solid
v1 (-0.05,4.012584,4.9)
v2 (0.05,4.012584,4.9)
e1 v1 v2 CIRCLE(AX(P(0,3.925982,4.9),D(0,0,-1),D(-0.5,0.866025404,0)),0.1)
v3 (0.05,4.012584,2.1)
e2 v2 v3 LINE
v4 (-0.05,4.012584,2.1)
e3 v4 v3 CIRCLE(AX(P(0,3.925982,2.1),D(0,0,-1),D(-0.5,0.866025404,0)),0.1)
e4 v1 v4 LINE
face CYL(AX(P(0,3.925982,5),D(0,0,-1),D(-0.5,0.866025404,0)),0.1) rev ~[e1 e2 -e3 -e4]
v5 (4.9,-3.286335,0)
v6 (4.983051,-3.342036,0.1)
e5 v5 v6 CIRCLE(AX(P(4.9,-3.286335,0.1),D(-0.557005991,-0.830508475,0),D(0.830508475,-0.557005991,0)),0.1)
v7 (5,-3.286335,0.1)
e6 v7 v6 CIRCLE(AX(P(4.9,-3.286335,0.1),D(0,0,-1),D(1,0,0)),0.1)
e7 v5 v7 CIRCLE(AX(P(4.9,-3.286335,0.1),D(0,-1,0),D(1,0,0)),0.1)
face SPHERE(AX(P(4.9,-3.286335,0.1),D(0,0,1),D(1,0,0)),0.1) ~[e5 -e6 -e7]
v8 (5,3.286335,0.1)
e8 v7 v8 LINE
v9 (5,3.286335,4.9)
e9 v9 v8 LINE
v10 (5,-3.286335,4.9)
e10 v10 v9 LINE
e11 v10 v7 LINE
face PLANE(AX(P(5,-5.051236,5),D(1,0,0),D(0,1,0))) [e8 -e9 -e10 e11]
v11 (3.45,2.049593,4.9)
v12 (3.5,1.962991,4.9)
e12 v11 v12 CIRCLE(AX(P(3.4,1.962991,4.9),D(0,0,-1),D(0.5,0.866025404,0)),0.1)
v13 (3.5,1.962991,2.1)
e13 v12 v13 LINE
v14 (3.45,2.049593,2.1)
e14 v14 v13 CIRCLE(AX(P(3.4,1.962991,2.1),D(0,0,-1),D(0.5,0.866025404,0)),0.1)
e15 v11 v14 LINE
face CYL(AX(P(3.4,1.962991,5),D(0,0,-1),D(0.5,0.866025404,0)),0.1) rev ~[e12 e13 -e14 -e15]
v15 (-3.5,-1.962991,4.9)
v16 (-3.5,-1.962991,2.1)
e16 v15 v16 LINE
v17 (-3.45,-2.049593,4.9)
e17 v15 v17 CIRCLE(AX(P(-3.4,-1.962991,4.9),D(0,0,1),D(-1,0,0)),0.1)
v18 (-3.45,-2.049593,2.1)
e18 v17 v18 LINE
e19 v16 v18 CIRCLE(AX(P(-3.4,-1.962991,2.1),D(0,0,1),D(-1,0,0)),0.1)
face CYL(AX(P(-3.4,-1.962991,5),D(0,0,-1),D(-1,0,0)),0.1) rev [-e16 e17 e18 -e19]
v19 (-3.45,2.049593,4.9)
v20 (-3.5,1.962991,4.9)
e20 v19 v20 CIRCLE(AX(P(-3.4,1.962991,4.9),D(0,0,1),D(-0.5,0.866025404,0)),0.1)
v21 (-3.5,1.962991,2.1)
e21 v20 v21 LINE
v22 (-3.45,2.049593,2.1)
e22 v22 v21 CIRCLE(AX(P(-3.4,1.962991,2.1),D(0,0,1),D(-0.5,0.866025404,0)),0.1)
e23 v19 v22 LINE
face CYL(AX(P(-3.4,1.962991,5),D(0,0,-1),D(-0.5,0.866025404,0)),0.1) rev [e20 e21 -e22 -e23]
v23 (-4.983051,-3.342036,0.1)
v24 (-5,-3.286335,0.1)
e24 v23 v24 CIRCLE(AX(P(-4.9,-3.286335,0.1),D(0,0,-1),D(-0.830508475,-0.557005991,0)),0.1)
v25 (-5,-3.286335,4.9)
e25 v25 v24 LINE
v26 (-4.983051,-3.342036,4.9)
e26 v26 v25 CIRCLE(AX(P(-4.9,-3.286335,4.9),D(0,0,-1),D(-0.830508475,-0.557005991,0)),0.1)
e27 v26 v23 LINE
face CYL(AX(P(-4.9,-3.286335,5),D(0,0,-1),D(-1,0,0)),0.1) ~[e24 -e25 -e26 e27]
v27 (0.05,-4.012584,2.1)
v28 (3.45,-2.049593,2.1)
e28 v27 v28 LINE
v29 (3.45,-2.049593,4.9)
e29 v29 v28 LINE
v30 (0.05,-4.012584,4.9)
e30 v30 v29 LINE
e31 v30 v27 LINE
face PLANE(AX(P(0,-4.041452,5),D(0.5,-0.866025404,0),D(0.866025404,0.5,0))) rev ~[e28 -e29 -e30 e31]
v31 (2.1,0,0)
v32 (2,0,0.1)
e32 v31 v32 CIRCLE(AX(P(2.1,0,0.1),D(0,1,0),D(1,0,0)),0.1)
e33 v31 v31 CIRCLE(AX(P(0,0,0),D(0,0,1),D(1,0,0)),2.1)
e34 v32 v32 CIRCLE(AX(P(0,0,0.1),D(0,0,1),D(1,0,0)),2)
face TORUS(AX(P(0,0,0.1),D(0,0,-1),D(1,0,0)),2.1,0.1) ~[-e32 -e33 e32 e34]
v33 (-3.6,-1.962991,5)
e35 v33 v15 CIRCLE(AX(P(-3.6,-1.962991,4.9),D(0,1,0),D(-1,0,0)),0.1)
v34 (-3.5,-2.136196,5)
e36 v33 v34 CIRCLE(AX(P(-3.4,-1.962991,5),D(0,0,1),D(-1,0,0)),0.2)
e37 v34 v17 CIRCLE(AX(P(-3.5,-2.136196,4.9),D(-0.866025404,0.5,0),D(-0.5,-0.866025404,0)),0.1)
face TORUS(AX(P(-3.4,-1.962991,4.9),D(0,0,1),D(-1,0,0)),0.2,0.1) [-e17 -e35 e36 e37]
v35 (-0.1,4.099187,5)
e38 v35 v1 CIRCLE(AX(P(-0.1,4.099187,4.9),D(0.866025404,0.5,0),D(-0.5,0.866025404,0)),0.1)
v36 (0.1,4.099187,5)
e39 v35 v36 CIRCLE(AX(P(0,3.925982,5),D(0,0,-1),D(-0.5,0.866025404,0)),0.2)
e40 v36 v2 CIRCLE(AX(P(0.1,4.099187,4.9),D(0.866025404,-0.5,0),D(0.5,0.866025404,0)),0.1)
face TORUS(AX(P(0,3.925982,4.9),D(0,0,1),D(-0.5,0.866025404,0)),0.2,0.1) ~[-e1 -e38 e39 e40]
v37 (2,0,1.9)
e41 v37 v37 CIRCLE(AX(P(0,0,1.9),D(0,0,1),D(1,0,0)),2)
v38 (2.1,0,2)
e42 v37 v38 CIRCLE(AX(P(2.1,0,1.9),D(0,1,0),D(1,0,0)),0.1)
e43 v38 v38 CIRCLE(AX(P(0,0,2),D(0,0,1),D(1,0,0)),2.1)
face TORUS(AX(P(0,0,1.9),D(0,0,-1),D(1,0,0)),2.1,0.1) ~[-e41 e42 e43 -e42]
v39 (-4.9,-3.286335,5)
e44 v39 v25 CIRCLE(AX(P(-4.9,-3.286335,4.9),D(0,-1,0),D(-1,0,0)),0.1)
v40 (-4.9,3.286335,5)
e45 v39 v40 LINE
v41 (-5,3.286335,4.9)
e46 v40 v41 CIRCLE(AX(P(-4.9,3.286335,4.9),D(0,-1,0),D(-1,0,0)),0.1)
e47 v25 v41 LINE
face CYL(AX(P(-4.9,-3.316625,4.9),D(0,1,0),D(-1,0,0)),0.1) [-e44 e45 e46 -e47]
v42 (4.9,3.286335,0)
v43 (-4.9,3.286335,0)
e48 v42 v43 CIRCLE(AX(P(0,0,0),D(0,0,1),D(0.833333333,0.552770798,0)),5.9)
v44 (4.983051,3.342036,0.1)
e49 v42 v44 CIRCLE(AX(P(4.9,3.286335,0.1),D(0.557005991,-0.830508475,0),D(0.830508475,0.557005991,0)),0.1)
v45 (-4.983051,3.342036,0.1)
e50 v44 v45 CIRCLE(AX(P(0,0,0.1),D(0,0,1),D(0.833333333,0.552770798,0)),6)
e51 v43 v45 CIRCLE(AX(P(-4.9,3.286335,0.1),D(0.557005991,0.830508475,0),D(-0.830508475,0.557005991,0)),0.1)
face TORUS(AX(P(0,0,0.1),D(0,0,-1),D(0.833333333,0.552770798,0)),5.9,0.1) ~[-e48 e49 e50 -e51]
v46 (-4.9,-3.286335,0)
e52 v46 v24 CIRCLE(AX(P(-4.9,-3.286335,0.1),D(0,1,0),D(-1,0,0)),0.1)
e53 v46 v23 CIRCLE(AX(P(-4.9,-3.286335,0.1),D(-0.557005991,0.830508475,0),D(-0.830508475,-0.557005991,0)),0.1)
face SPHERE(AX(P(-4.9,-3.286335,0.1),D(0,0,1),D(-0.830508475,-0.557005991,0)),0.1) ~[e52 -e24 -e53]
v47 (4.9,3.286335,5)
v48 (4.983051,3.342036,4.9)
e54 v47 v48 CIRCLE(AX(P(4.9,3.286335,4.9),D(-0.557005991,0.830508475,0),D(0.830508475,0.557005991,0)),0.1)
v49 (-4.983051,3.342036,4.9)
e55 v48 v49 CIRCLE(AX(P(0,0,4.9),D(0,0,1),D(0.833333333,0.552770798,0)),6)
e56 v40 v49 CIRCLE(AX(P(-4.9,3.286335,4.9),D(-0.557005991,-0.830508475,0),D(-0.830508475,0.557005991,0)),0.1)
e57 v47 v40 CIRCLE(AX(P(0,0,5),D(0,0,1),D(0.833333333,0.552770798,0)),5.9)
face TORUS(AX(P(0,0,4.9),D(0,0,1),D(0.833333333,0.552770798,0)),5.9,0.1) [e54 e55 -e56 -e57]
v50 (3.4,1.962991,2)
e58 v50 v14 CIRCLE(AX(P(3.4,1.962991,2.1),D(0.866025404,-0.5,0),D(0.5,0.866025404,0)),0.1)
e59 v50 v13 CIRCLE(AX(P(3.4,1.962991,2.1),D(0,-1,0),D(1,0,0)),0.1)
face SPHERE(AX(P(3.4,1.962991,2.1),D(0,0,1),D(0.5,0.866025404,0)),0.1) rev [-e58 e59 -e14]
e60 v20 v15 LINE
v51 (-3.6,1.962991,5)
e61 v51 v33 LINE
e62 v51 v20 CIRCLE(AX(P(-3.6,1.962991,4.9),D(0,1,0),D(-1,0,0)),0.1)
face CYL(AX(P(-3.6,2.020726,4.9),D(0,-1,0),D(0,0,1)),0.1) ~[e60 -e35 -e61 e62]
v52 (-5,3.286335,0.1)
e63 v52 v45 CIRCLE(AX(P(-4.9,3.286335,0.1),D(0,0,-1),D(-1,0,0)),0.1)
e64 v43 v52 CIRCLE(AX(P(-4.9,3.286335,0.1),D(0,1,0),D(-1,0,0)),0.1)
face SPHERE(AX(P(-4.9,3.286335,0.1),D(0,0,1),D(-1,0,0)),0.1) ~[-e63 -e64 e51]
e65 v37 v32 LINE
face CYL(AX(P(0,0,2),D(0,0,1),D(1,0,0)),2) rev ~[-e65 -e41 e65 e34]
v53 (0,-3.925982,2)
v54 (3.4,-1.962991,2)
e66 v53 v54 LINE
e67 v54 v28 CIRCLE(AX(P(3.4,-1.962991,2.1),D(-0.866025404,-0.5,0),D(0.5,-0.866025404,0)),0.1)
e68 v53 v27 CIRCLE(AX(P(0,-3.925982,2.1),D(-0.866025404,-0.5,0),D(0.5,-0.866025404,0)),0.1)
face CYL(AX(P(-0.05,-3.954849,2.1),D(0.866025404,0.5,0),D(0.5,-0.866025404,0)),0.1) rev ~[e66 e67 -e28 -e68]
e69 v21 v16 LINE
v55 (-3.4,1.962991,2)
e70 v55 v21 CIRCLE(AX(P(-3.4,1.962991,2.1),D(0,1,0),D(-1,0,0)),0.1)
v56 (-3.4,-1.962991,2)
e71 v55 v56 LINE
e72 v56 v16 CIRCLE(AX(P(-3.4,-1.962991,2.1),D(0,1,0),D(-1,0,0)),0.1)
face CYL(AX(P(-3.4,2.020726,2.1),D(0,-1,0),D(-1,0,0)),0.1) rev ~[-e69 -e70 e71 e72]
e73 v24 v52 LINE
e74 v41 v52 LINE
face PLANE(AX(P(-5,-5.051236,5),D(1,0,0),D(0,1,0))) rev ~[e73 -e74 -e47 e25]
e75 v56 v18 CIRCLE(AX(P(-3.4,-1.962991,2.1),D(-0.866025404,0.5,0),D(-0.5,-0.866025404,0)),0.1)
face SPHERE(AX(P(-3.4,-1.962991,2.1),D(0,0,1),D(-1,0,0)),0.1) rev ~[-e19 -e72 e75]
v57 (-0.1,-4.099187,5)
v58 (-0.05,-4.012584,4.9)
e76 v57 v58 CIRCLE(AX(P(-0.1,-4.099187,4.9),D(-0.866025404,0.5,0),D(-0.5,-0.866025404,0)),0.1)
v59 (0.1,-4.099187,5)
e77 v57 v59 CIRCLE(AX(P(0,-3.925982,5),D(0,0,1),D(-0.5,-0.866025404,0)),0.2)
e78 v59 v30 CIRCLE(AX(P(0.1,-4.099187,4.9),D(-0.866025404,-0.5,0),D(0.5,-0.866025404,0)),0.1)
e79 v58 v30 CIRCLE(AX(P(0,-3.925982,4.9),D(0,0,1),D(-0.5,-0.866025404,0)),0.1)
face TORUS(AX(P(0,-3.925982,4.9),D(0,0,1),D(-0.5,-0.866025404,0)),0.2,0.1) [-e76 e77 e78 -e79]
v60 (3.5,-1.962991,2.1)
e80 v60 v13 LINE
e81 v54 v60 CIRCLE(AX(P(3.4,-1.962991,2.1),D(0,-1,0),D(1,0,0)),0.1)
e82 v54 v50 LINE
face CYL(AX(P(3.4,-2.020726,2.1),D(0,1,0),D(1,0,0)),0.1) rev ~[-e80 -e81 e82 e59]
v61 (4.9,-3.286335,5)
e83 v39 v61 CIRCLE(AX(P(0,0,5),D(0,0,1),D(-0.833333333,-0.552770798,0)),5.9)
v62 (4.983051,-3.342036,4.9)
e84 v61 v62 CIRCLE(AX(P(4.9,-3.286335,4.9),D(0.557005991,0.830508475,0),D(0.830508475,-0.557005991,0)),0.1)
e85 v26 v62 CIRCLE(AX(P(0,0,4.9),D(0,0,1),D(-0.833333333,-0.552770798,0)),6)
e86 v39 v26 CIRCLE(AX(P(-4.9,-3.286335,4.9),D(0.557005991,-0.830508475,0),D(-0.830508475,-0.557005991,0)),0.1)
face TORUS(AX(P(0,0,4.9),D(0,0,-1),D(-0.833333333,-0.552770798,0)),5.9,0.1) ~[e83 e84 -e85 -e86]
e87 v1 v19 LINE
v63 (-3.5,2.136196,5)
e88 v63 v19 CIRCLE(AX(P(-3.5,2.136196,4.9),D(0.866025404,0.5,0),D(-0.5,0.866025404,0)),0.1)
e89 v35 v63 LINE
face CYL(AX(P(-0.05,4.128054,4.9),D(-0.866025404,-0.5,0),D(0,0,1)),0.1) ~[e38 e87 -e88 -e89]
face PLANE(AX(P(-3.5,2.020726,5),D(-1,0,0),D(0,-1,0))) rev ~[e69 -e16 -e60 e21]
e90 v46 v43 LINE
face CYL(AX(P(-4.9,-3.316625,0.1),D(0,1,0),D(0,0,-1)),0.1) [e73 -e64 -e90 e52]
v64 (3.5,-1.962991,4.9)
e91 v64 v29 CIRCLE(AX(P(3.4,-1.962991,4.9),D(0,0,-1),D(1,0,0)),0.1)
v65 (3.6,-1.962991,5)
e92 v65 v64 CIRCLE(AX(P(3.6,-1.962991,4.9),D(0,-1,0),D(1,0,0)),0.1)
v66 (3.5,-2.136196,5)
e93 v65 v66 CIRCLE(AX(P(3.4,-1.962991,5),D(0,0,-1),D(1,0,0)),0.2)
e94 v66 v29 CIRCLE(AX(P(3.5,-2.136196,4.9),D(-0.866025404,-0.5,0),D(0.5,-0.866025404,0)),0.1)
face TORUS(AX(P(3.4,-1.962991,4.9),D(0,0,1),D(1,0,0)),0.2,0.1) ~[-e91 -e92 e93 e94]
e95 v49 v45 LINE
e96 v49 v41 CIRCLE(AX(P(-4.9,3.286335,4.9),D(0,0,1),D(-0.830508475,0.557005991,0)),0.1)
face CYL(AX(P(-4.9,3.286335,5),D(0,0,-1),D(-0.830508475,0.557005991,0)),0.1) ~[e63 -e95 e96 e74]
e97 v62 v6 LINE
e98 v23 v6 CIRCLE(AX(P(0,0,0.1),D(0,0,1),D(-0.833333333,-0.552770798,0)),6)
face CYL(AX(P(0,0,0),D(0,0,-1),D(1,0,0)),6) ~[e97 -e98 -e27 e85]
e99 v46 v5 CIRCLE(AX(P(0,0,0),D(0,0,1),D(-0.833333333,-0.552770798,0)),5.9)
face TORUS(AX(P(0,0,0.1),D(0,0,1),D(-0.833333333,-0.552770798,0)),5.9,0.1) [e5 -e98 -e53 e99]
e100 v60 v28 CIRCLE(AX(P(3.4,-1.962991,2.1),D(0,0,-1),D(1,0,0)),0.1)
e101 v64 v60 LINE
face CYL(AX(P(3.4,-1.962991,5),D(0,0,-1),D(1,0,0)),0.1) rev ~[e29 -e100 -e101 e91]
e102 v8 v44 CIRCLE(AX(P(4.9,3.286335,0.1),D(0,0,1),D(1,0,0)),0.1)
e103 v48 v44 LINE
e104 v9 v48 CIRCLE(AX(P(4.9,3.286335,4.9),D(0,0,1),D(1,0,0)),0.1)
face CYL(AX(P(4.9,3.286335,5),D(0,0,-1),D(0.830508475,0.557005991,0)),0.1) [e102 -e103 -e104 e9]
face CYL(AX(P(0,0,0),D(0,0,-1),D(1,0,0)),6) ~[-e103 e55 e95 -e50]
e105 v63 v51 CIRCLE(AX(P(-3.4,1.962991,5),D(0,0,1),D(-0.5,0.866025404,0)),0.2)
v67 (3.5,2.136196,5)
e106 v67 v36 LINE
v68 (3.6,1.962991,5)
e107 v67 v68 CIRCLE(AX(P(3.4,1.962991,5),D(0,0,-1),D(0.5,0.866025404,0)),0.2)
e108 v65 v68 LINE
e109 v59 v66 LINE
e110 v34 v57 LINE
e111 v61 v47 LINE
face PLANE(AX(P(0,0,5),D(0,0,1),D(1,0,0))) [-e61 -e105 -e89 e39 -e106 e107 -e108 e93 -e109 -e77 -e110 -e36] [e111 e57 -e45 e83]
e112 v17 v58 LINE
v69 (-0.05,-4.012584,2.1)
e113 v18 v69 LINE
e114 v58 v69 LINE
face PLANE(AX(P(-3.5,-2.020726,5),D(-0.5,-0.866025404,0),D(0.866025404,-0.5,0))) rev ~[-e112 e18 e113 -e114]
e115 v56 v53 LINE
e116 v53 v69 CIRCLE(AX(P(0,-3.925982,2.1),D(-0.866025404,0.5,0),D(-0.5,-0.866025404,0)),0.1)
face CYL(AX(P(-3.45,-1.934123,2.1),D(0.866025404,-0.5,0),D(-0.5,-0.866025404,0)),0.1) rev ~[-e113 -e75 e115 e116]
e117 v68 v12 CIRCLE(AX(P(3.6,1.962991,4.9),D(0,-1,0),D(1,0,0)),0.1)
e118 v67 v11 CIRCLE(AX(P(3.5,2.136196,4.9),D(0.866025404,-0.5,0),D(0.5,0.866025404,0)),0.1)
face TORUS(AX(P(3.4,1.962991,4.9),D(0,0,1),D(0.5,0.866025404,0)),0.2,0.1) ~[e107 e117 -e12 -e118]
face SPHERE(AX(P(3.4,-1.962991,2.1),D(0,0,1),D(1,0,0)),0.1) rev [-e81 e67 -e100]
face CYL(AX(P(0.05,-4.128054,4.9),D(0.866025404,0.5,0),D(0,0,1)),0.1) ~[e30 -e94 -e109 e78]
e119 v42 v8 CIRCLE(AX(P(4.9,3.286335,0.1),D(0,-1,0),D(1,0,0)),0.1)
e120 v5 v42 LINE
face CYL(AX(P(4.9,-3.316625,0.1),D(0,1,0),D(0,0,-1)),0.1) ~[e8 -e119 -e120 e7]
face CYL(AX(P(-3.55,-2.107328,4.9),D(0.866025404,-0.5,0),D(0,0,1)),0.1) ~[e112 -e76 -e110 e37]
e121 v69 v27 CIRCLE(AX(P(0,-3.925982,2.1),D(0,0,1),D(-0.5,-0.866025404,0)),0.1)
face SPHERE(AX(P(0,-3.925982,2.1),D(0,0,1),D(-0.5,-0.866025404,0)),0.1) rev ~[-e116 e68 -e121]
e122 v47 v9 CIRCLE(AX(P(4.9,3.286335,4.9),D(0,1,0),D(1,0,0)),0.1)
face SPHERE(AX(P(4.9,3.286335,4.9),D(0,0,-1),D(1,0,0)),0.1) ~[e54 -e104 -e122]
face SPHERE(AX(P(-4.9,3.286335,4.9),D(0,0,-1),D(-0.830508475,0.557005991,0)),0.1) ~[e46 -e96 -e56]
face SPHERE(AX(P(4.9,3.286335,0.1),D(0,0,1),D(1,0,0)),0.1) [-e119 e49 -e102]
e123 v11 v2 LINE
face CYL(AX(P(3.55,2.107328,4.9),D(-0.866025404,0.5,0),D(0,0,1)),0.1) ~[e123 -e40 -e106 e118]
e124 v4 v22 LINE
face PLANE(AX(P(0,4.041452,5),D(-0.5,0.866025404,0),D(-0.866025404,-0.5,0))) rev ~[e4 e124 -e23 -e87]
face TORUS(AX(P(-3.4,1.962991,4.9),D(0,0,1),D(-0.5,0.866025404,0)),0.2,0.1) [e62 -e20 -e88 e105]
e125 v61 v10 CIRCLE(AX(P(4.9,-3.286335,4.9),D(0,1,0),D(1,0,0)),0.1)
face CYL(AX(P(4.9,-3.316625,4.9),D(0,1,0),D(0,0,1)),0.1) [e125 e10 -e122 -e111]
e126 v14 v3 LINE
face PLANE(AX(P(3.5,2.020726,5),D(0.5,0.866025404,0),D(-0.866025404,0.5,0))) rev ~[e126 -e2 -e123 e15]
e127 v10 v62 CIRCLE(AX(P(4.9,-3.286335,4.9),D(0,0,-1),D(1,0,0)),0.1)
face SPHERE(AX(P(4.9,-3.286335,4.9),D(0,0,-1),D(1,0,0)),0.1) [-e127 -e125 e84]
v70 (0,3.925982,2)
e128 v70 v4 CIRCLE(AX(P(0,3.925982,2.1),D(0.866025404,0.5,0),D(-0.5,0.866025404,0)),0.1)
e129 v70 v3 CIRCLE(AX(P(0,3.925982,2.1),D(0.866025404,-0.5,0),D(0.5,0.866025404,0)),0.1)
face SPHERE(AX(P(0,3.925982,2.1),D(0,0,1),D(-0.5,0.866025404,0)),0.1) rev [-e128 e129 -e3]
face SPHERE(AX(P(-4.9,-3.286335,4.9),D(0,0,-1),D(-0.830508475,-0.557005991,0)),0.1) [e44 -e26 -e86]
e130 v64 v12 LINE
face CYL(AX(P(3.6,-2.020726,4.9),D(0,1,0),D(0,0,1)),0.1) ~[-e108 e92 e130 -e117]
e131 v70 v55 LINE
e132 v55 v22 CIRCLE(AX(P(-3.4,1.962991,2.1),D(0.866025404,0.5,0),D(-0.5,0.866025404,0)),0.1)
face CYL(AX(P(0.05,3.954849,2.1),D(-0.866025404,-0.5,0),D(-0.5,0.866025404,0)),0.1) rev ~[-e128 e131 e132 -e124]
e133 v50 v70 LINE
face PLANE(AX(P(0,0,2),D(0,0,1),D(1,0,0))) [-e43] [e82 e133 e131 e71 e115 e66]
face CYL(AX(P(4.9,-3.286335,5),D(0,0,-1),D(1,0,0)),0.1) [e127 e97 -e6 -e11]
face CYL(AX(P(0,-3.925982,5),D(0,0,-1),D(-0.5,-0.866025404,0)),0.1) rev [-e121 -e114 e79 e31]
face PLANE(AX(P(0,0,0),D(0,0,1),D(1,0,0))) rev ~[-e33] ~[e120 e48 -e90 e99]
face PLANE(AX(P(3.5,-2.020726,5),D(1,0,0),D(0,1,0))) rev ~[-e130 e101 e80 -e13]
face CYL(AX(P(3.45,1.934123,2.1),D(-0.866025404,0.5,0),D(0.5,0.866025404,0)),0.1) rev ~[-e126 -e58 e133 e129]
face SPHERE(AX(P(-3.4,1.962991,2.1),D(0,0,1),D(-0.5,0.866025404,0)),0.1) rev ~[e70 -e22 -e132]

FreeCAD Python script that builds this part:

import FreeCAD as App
import Part
import Sketcher
from FreeCAD import Vector
Q = App.Units.Quantity

doc = App.newDocument("Part")
params = doc.addObject("Spreadsheet::Sheet", "Params")
for row, (alias, value) in enumerate([
    ("sketch1_diameter", "12 mm"),
    ("pad1_length", "5 mm"),
    ("pocket1_length", "3 mm"),
    ("sketch4_diameter", "4 mm"),
    ("fillet_radius", "0.1 mm"),
], start=1):
    params.set(f"A{row}", alias)
    params.set(f"B{row}", "=" + value)
    params.setAlias(f"B{row}", alias)

body = doc.addObject("PartDesign::Body", "Body")

# Sketch on XY plane
sketch1 = doc.addObject("Sketcher::SketchObject", "Sketch")
body.addObject(sketch1)
sketch1.AttachmentSupport = (doc.XY_Plane, [""])
sketch1.MapMode = "FlatFace"
sketch1.addGeometry(Part.Circle(Vector(0, 0, 0), Vector(0, 0, 1), 6), False)
sketch1.addConstraint([
    Sketcher.Constraint("Coincident", 0, 3, -1, 1),
    Sketcher.Constraint("Diameter", 0, 12.0),
])
sketch1.setExpression("Constraints[1]", "Params.sketch1_diameter")
pad1 = doc.addObject("PartDesign::Pad", "Pad")
body.addObject(pad1)
pad1.Profile = sketch1
pad1.setExpression("Length", "Params.pad1_length")

# Sketch on XY plane
sketch2 = doc.addObject("Sketcher::SketchObject", "Sketch001")
body.addObject(sketch2)
sketch2.AttachmentSupport = (doc.XY_Plane, [""])
sketch2.MapMode = "FlatFace"
sketch2.AttachmentOffset = App.Placement(Vector(0, 0, 5), App.Rotation())
sketch2.addGeometry([
    Part.LineSegment(Vector(0, 4, 0), Vector(-3.5, 2, 0)),  # 0
    Part.LineSegment(Vector(-3.5, 2, 0), Vector(-3.5, -2, 0)),  # 1
    Part.LineSegment(Vector(-3.5, -2, 0), Vector(0, -4, 0)),  # 2
    Part.LineSegment(Vector(0, -4, 0), Vector(3.5, -2, 0)),  # 3
    Part.LineSegment(Vector(3.5, -2, 0), Vector(3.5, 2, 0)),  # 4
    Part.LineSegment(Vector(3.5, 2, 0), Vector(0, 4, 0)),  # 5
], False)
sketch2.addConstraint([
    Sketcher.Constraint("Coincident", 0, 2, 1, 1),
    Sketcher.Constraint("Coincident", 1, 2, 2, 1),
    Sketcher.Constraint("Coincident", 2, 2, 3, 1),
    Sketcher.Constraint("Coincident", 3, 2, 4, 1),
    Sketcher.Constraint("Coincident", 4, 2, 5, 1),
    Sketcher.Constraint("Coincident", 5, 2, 0, 1),
    Sketcher.Constraint("Vertical", 1),
    Sketcher.Constraint("Vertical", 4),
    Sketcher.Constraint("Symmetric", 0, 2, 3, 2, -1, 1),
    Sketcher.Constraint("Symmetric", 2, 2, 5, 2, -1, 1),
    Sketcher.Constraint("PointOnObject", 2, 2, -2),
    Sketcher.Constraint("Parallel", 2, 5),
    Sketcher.Constraint("Horizontal", 1, 2, 3, 2),
    Sketcher.Constraint("Angle", 0, Q("-150 deg")),
    Sketcher.Constraint("DistanceX", 1, 2, 3, 2, 7.0),
    Sketcher.Constraint("DistanceY", 1, 2, 1, 1, 4.041452),
])
pocket1 = doc.addObject("PartDesign::Pocket", "Pocket")
body.addObject(pocket1)
pocket1.Profile = sketch2
pocket1.setExpression("Length", "Params.pocket1_length")

# Sketch on XY plane
sketch3 = doc.addObject("Sketcher::SketchObject", "Sketch002")
body.addObject(sketch3)
sketch3.AttachmentSupport = (doc.XY_Plane, [""])
sketch3.MapMode = "FlatFace"
sketch3.AttachmentOffset = App.Placement(Vector(0, 0, 5), App.Rotation())
sketch3.addGeometry([
    Part.LineSegment(Vector(-8.2, 5.6, 0), Vector(-8.2, -5.1, 0)),  # 0
    Part.LineSegment(Vector(-8.2, -5.1, 0), Vector(-5, -5.1, 0)),  # 1
    Part.LineSegment(Vector(-5, -5.1, 0), Vector(-5, 5.6, 0)),  # 2
    Part.LineSegment(Vector(-5, 5.6, 0), Vector(-8.2, 5.6, 0)),  # 3
    Part.LineSegment(Vector(5, 5.6, 0), Vector(5, -5.1, 0)),  # 4
    Part.LineSegment(Vector(5, -5.1, 0), Vector(8.2, -5.1, 0)),  # 5
    Part.LineSegment(Vector(8.2, -5.1, 0), Vector(8.2, 5.6, 0)),  # 6
    Part.LineSegment(Vector(8.2, 5.6, 0), Vector(5, 5.6, 0)),  # 7
], False)
sketch3.addConstraint([
    Sketcher.Constraint("Coincident", 0, 2, 1, 1),
    Sketcher.Constraint("Coincident", 1, 2, 2, 1),
    Sketcher.Constraint("Coincident", 2, 2, 3, 1),
    Sketcher.Constraint("Coincident", 3, 2, 0, 1),
    Sketcher.Constraint("Coincident", 4, 2, 5, 1),
    Sketcher.Constraint("Coincident", 5, 2, 6, 1),
    Sketcher.Constraint("Coincident", 6, 2, 7, 1),
    Sketcher.Constraint("Coincident", 7, 2, 4, 1),
    Sketcher.Constraint("Vertical", 0),
    Sketcher.Constraint("Horizontal", 1),
    Sketcher.Constraint("Vertical", 2),
    Sketcher.Constraint("Horizontal", 3),
    Sketcher.Constraint("Vertical", 4),
    Sketcher.Constraint("Horizontal", 5),
    Sketcher.Constraint("Vertical", 6),
    Sketcher.Constraint("Horizontal", 7),
    Sketcher.Constraint("Symmetric", 1, 2, 4, 2, -2),
    Sketcher.Constraint("Symmetric", 3, 2, 6, 2, -2),
    Sketcher.Constraint("DistanceX", 1, 2, -1, 1, 5.0),
    Sketcher.Constraint("DistanceX", 1, 1, 1, 2, 3.158529),
    Sketcher.Constraint("DistanceY", 0, 2, 0, 1, 10.681133),
    Sketcher.Constraint("DistanceY", 0, 2, -1, 1, 5.051236),
])
pocket2 = doc.addObject("PartDesign::Pocket", "Pocket001")
body.addObject(pocket2)
pocket2.Profile = sketch3
pocket2.Type = "ThroughAll"

# Sketch on XY plane
sketch4 = doc.addObject("Sketcher::SketchObject", "Sketch003")
body.addObject(sketch4)
sketch4.AttachmentSupport = (doc.XY_Plane, [""])
sketch4.MapMode = "FlatFace"
sketch4.AttachmentOffset = App.Placement(Vector(0, 0, 2), App.Rotation())
sketch4.addGeometry(Part.Circle(Vector(0, 0, 0), Vector(0, 0, 1), 2), False)
sketch4.addConstraint([
    Sketcher.Constraint("Coincident", 0, 3, -1, 1),
    Sketcher.Constraint("Diameter", 0, 4.0),
])
sketch4.setExpression("Constraints[1]", "Params.sketch4_diameter")
pocket3 = doc.addObject("PartDesign::Pocket", "Pocket002")
body.addObject(pocket3)
pocket3.Profile = sketch4
pocket3.Type = "ThroughAll"
doc.recompute()

fillet = doc.addObject("PartDesign::Fillet", "Fillet")
body.addObject(fillet)
fillet.Base = (pocket3, ["Edge1"])
fillet.UseAllEdges = True
fillet.setExpression("Radius", "Params.fillet_radius")

doc.recompute()
